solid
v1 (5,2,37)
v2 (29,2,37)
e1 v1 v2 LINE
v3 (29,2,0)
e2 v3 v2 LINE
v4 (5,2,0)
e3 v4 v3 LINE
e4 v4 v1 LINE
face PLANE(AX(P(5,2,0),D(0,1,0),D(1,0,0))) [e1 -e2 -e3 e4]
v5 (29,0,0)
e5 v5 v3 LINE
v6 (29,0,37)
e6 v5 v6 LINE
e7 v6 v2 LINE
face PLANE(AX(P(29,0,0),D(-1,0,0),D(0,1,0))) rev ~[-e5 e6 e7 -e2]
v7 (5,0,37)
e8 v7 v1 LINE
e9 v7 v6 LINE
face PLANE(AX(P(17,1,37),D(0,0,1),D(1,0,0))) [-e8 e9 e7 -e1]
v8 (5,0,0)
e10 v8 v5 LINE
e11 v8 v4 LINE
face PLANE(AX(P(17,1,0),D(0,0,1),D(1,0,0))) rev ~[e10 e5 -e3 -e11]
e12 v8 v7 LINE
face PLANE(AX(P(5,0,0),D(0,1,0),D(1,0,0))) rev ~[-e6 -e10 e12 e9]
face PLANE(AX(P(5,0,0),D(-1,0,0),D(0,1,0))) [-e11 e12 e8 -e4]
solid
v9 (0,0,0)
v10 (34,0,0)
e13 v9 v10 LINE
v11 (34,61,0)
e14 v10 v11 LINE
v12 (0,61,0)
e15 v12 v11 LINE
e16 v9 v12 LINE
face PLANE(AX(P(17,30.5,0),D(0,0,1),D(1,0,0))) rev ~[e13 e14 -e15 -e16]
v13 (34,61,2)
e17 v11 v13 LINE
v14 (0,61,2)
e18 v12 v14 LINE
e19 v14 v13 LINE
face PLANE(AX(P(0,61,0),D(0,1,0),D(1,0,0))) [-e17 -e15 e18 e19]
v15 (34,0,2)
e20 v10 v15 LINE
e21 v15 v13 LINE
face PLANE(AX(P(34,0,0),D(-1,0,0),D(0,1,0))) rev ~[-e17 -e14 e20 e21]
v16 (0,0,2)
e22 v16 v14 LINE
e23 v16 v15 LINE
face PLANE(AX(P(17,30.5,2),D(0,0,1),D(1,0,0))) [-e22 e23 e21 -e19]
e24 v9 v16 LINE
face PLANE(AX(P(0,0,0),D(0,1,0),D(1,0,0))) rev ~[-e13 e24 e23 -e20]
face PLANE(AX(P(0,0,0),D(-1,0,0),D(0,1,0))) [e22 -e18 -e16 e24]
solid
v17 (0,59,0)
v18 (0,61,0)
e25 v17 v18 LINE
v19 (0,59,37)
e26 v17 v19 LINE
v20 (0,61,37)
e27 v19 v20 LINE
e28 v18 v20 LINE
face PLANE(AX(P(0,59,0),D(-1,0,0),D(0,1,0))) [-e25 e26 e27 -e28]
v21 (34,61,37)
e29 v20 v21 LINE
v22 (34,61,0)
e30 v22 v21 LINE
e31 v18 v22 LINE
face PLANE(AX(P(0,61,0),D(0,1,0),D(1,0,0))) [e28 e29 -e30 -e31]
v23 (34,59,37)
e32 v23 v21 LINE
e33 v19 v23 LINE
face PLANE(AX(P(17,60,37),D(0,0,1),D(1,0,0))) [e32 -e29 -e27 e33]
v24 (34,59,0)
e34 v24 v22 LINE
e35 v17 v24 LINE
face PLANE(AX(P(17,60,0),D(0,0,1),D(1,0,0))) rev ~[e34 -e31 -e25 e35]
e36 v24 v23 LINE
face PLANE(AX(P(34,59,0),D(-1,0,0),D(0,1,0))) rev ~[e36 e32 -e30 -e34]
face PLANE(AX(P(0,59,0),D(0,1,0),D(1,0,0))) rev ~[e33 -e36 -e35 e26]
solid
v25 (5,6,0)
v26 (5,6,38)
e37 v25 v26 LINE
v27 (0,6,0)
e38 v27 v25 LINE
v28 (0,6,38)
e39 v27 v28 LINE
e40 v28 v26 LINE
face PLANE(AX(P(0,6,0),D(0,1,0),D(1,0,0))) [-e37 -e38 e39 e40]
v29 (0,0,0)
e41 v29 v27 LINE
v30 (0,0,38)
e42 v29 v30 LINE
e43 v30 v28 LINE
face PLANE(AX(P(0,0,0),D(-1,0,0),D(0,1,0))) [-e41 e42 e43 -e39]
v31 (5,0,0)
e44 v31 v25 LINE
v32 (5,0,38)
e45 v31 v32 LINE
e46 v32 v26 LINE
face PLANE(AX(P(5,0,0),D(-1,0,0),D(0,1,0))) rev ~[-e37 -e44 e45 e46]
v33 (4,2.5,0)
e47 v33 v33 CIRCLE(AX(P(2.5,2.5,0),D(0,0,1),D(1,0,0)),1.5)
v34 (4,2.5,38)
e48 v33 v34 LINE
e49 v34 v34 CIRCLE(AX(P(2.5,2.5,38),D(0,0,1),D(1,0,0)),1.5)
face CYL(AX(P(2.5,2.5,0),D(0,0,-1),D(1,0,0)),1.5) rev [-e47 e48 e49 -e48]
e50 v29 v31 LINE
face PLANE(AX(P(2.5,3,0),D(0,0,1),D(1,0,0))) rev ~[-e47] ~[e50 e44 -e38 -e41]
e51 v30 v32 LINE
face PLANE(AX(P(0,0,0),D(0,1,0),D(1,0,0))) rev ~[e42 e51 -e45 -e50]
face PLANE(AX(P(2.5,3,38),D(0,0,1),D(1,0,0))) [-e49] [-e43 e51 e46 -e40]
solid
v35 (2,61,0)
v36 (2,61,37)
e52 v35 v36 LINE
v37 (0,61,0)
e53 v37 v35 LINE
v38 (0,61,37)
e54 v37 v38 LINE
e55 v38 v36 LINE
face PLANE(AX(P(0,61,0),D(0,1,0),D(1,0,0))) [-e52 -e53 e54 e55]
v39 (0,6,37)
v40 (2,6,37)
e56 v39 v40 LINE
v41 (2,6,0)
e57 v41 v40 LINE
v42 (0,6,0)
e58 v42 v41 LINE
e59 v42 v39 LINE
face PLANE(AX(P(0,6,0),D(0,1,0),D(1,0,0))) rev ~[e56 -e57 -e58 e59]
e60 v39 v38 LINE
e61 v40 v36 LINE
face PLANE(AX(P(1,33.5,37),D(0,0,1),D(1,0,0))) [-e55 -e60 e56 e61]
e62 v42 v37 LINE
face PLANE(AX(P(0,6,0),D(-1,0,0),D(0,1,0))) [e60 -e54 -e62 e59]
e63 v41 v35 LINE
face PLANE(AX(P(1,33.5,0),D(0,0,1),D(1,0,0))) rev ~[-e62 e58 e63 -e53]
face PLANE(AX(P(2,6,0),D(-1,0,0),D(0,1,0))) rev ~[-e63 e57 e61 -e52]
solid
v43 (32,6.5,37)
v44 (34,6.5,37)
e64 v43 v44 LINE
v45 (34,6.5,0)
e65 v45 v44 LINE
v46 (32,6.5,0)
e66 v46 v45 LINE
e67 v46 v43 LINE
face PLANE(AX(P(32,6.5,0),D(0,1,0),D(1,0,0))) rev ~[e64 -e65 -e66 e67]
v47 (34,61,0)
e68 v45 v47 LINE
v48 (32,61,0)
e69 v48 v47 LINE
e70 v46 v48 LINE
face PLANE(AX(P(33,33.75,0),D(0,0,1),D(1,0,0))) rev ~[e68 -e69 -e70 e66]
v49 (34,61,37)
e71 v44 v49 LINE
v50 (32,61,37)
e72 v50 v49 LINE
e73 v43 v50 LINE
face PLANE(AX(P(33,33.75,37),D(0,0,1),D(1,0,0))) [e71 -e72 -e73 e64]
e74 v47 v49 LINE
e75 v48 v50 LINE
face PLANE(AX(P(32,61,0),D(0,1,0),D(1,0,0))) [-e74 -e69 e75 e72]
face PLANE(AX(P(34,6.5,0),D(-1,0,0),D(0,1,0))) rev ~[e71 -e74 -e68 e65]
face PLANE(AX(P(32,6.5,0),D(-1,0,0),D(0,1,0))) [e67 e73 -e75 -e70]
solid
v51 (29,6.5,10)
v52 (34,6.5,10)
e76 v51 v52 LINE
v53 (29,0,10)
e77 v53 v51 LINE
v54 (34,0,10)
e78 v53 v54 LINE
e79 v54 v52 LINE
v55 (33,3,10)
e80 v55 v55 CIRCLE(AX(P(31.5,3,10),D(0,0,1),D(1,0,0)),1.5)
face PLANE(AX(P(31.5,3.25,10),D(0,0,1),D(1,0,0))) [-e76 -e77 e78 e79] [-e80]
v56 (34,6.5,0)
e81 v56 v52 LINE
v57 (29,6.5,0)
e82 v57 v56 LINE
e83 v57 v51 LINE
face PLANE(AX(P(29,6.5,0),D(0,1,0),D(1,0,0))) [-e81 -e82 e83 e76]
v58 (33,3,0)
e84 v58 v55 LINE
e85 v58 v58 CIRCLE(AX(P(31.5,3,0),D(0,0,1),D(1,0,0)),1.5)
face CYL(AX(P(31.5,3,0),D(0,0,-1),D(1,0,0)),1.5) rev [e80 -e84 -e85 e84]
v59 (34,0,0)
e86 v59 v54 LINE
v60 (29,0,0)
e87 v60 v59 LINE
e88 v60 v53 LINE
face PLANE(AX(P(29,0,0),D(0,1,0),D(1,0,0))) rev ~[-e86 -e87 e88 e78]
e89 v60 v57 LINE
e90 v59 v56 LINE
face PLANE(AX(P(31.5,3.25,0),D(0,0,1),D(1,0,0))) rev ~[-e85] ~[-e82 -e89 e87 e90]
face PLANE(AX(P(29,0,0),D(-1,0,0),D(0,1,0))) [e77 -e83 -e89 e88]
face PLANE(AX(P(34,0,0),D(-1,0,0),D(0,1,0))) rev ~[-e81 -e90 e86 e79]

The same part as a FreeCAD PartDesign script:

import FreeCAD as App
import Part
import Sketcher
from FreeCAD import Vector


def add_polygon(sketch, points):
    """Adds a closed chain of lines whose ends are joined by coincident constraints."""
    first, n = sketch.GeometryCount, len(points)
    for a, b in zip(points, points[1:] + points[:1]):
        sketch.addGeometry(Part.LineSegment(App.Vector(*a, 0), App.Vector(*b, 0)), False)
    for i in range(n):
        sketch.addConstraint(Sketcher.Constraint("Coincident", first + i, 2, first + (i + 1) % n, 1))

doc = App.newDocument("Part")
body = doc.addObject("PartDesign::Body", "Body")

# Sketch on XY plane
sketch1 = doc.addObject("Sketcher::SketchObject", "Sketch")
body.addObject(sketch1)
sketch1.AttachmentSupport = (doc.XY_Plane, [""])
sketch1.MapMode = "FlatFace"
add_polygon(sketch1, [(0, 61), (0, 0), (34, 0), (34, 61)])  # lines 0-3
sketch1.addConstraint([
    Sketcher.Constraint("Vertical", 0),
    Sketcher.Constraint("Horizontal", 1),
    Sketcher.Constraint("Vertical", 2),
    Sketcher.Constraint("Horizontal", 3),
    Sketcher.Constraint("Coincident", 0, 2, -1, 1),
    Sketcher.Constraint("DistanceX", 1, 1, 1, 2, 34.0),
    Sketcher.Constraint("DistanceY", 0, 2, 0, 1, 61.0),
])
pad1 = doc.addObject("PartDesign::Pad", "Pad")
body.addObject(pad1)
pad1.Profile = sketch1
pad1.Length = 2
body2 = doc.addObject("PartDesign::Body", "Body001")

# Sketch on XY plane
sketch2 = doc.addObject("Sketcher::SketchObject", "Sketch001")
body2.addObject(sketch2)
sketch2.AttachmentSupport = (doc.getObject("XY_Plane001"), [""])
sketch2.MapMode = "FlatFace"
add_polygon(sketch2, [(0, 61), (0, 6), (2, 6), (2, 61)])  # lines 0-3
sketch2.addConstraint([
    Sketcher.Constraint("Vertical", 0),
    Sketcher.Constraint("Horizontal", 1),
    Sketcher.Constraint("Vertical", 2),
    Sketcher.Constraint("Horizontal", 3),
    Sketcher.Constraint("PointOnObject", 0, 2, -2),
    Sketcher.Constraint("DistanceX", 1, 1, 1, 2, 2.0),
    Sketcher.Constraint("DistanceY", 0, 2, 0, 1, 55.0),
    Sketcher.Constraint("DistanceY", -1, 1, 0, 2, 6.0),
])
pad2 = doc.addObject("PartDesign::Pad", "Pad001")
body2.addObject(pad2)
pad2.Profile = sketch2
pad2.Length = 37
body3 = doc.addObject("PartDesign::Body", "Body002")

# Sketch on XY plane
sketch3 = doc.addObject("Sketcher::SketchObject", "Sketch002")
body3.addObject(sketch3)
sketch3.AttachmentSupport = (doc.getObject("XY_Plane002"), [""])
sketch3.MapMode = "FlatFace"
add_polygon(sketch3, [(32, 61), (32, 6.5), (34, 6.5), (34, 61)])  # lines 0-3
sketch3.addConstraint([
    Sketcher.Constraint("Vertical", 0),
    Sketcher.Constraint("Horizontal", 1),
    Sketcher.Constraint("Vertical", 2),
    Sketcher.Constraint("Horizontal", 3),
    Sketcher.Constraint("DistanceX", 1, 1, 1, 2, 2.0),
    Sketcher.Constraint("DistanceY", 0, 2, 0, 1, 54.5),
    Sketcher.Constraint("DistanceX", -1, 1, 0, 2, 32.0),
    Sketcher.Constraint("DistanceY", -1, 1, 2, 2, 61.0),
])
pad3 = doc.addObject("PartDesign::Pad", "Pad002")
body3.addObject(pad3)
pad3.Profile = sketch3
pad3.Length = 37
body4 = doc.addObject("PartDesign::Body", "Body003")

# Sketch on XY plane
sketch4 = doc.addObject("Sketcher::SketchObject", "Sketch003")
body4.addObject(sketch4)
sketch4.AttachmentSupport = (doc.getObject("XY_Plane003"), [""])
sketch4.MapMode = "FlatFace"
add_polygon(sketch4, [(0, 61), (0, 59), (34, 59), (34, 61)])  # lines 0-3
sketch4.addConstraint([
    Sketcher.Constraint("Vertical", 0),
    Sketcher.Constraint("Horizontal", 1),
    Sketcher.Constraint("Vertical", 2),
    Sketcher.Constraint("Horizontal", 3),
    Sketcher.Constraint("PointOnObject", 0, 2, -2),
    Sketcher.Constraint("DistanceX", 1, 1, 1, 2, 34.0),
    Sketcher.Constraint("DistanceY", 0, 2, 0, 1, 2.0),
    Sketcher.Constraint("DistanceY", -1, 1, 0, 2, 59.0),
])
pad4 = doc.addObject("PartDesign::Pad", "Pad003")
body4.addObject(pad4)
pad4.Profile = sketch4
pad4.Length = 37
body5 = doc.addObject("PartDesign::Body", "Body004")

# Sketch on XY plane
sketch5 = doc.addObject("Sketcher::SketchObject", "Sketch004")
body5.addObject(sketch5)
sketch5.AttachmentSupport = (doc.getObject("XY_Plane004"), [""])
sketch5.MapMode = "FlatFace"
add_polygon(sketch5, [(5, 2), (5, 0), (29, 0), (29, 2)])  # lines 0-3
sketch5.addConstraint([
    Sketcher.Constraint("Vertical", 0),
    Sketcher.Constraint("Horizontal", 1),
    Sketcher.Constraint("Vertical", 2),
    Sketcher.Constraint("Horizontal", 3),
    Sketcher.Constraint("PointOnObject", 0, 2, -1),
    Sketcher.Constraint("DistanceX", 1, 1, 1, 2, 24.0),
    Sketcher.Constraint("DistanceY", 0, 2, 0, 1, 2.0),
    Sketcher.Constraint("DistanceX", -1, 1, 0, 2, 5.0),
])
pad5 = doc.addObject("PartDesign::Pad", "Pad004")
body5.addObject(pad5)
pad5.Profile = sketch5
pad5.Length = 37
body6 = doc.addObject("PartDesign::Body", "Body005")

# Sketch on XY plane
sketch6 = doc.addObject("Sketcher::SketchObject", "Sketch005")
body6.addObject(sketch6)
sketch6.AttachmentSupport = (doc.getObject("XY_Plane005"), [""])
sketch6.MapMode = "FlatFace"
sketch6.addGeometry(Part.Circle(Vector(31.5, 3, 0), Vector(0, 0, 1), 1.5), False)
sketch6.addConstraint([
    Sketcher.Constraint("Diameter", 0, 3.0),
    Sketcher.Constraint("DistanceY", -1, 1, 0, 3, 3.0),
    Sketcher.Constraint("DistanceX", -1, 1, 0, 3, 31.5),
])
pad6 = doc.addObject("PartDesign::Pad", "Pad005")
body6.addObject(pad6)
pad6.Profile = sketch6
pad6.Length = 10
body7 = doc.addObject("PartDesign::Body", "Body006")

# Sketch on XY plane
sketch7 = doc.addObject("Sketcher::SketchObject", "Sketch006")
body7.addObject(sketch7)
sketch7.AttachmentSupport = (doc.getObject("XY_Plane006"), [""])
sketch7.MapMode = "FlatFace"
add_polygon(sketch7, [(29, 6.5), (29, 0), (34, 0), (34, 6.5)])  # lines 0-3
sketch7.addConstraint([
    Sketcher.Constraint("Vertical", 0),
    Sketcher.Constraint("Horizontal", 1),
    Sketcher.Constraint("Vertical", 2),
    Sketcher.Constraint("Horizontal", 3),
    Sketcher.Constraint("PointOnObject", 0, 2, -1),
    Sketcher.Constraint("DistanceX", 1, 1, 1, 2, 5.0),
    Sketcher.Constraint("DistanceY", 0, 2, 0, 1, 6.5),
    Sketcher.Constraint("DistanceX", -1, 1, 0, 2, 29.0),
])
pad7 = doc.addObject("PartDesign::Pad", "Pad006")
body7.addObject(pad7)
pad7.Profile = sketch7
pad7.Length = 10
doc.recompute()

boolean = doc.addObject("PartDesign::Boolean", "Boolean")
body7.addObject(boolean)
boolean.Type = "Cut"
boolean.addObjects([body6])
body8 = doc.addObject("PartDesign::Body", "Body007")

# Sketch on XY plane
sketch8 = doc.addObject("Sketcher::SketchObject", "Sketch007")
body8.addObject(sketch8)
sketch8.AttachmentSupport = (doc.getObject("XY_Plane007"), [""])
sketch8.MapMode = "FlatFace"
sketch8.addGeometry(Part.Circle(Vector(2.5, 2.5, 0), Vector(0, 0, 1), 1.5), False)
sketch8.addConstraint([
    Sketcher.Constraint("Diameter", 0, 3.0),
    Sketcher.Constraint("DistanceX", -1, 1, 0, 3, 2.5),
    Sketcher.Constraint("DistanceY", -1, 1, 0, 3, 2.5),
])
pad8 = doc.addObject("PartDesign::Pad", "Pad007")
body8.addObject(pad8)
pad8.Profile = sketch8
pad8.Length = 38
body9 = doc.addObject("PartDesign::Body", "Body008")

# Sketch on XY plane
sketch9 = doc.addObject("Sketcher::SketchObject", "Sketch008")
body9.addObject(sketch9)
sketch9.AttachmentSupport = (doc.getObject("XY_Plane008"), [""])
sketch9.MapMode = "FlatFace"
add_polygon(sketch9, [(0, 6), (0, 0), (5, 0), (5, 6)])  # lines 0-3
sketch9.addConstraint([
    Sketcher.Constraint("Vertical", 0),
    Sketcher.Constraint("Horizontal", 1),
    Sketcher.Constraint("Vertical", 2),
    Sketcher.Constraint("Horizontal", 3),
    Sketcher.Constraint("Coincident", 0, 2, -1, 1),
    Sketcher.Constraint("DistanceX", 1, 1, 1, 2, 5.0),
    Sketcher.Constraint("DistanceY", 0, 2, 0, 1, 6.0),
])
pad9 = doc.addObject("PartDesign::Pad", "Pad008")
body9.addObject(pad9)
pad9.Profile = sketch9
pad9.Length = 38
doc.recompute()

boolean2 = doc.addObject("PartDesign::Boolean", "Boolean001")
body9.addObject(boolean2)
boolean2.Type = "Cut"
boolean2.addObjects([body8])

doc.recompute()
